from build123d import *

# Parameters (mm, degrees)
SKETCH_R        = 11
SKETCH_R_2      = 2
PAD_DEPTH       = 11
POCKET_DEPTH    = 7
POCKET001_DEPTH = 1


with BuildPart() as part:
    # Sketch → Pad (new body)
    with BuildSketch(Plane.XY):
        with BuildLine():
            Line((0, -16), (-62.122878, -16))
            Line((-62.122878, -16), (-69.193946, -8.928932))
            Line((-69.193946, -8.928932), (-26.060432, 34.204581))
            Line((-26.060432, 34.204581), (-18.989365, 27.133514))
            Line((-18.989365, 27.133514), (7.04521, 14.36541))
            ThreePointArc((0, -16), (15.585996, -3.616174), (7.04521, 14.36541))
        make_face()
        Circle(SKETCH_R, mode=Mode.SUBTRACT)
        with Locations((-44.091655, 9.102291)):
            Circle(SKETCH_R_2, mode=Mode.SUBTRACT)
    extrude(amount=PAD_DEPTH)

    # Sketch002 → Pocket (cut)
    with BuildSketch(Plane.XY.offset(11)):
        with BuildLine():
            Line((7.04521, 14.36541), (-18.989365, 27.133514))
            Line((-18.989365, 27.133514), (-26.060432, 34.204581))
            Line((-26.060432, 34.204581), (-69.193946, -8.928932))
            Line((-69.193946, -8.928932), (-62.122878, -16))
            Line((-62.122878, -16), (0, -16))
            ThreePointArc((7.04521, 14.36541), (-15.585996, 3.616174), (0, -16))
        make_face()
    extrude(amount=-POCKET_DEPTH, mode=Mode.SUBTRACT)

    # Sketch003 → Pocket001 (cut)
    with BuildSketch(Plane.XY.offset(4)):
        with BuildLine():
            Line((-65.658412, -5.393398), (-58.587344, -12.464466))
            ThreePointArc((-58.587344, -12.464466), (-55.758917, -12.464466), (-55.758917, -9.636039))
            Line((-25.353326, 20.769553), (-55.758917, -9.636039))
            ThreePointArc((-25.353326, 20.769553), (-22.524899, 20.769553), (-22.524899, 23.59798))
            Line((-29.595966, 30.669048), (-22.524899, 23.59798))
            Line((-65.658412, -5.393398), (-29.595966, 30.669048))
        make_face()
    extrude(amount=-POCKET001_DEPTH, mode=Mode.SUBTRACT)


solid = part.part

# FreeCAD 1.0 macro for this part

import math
import FreeCAD as App
import Part
import Sketcher
from FreeCAD import Vector
Q = App.Units.Quantity

doc = App.newDocument("Part")
body = doc.addObject("PartDesign::Body", "Body")

# Sketch on XY plane
sketch1 = doc.addObject("Sketcher::SketchObject", "Sketch")
body.addObject(sketch1)
sketch1.AttachmentSupport = (doc.XY_Plane, [""])
sketch1.MapMode = "FlatFace"
sketch1.addGeometry([
    Part.LineSegment(Vector(-62.1, -16, 0), Vector(0, -16, 0)),  # 0
    Part.ArcOfCircle(Part.Circle(Vector(0, 0, 0), Vector(0, 0, 1), 16), math.radians(-90), math.radians(64)),  # 1
    Part.LineSegment(Vector(7, 14.4, 0), Vector(-19, 27.1, 0)),  # 2
    Part.LineSegment(Vector(-19, 27.1, 0), Vector(-26.1, 34.2, 0)),  # 3
    Part.LineSegment(Vector(-26.1, 34.2, 0), Vector(-69.2, -8.9, 0)),  # 4
    Part.LineSegment(Vector(-69.2, -8.9, 0), Vector(-62.1, -16, 0)),  # 5
    Part.Circle(Vector(0, 0, 0), Vector(0, 0, 1), 11),  # 6
    Part.Circle(Vector(-44.1, 9.1, 0), Vector(0, 0, 1), 2),  # 7
], False)
sketch1.addConstraint([
    Sketcher.Constraint("Tangent", 0, 2, 1, 1),
    Sketcher.Constraint("Tangent", 1, 2, 2, 1),
    Sketcher.Constraint("Coincident", 2, 2, 3, 1),
    Sketcher.Constraint("Coincident", 3, 2, 4, 1),
    Sketcher.Constraint("Coincident", 4, 2, 5, 1),
    Sketcher.Constraint("Coincident", 5, 2, 0, 1),
    Sketcher.Constraint("Horizontal", 0),
    Sketcher.Constraint("Coincident", 1, 3, -1, 1),
    Sketcher.Constraint("Coincident", 6, 3, -1, 1),
    Sketcher.Constraint("Perpendicular", 3, 4),
    Sketcher.Constraint("Perpendicular", 4, 5),
    Sketcher.Constraint("Equal", 3, 5),
    Sketcher.Constraint("Diameter", 6, 22.0),
    Sketcher.Constraint("Diameter", 7, 4.0),
    Sketcher.Constraint("Radius", 1, 16.0),
    Sketcher.Constraint("Angle", 3, Q("135 deg")),
    Sketcher.Constraint("Distance", 3, 9.999999),
    Sketcher.Constraint("Distance", 4, 61.0),
    Sketcher.Constraint("Distance", 2, 28.996958),
    Sketcher.Constraint("DistanceY", -1, 1, 7, 3, 9.102291),
    Sketcher.Constraint("DistanceX", 7, 3, 2, 2, 25.10229),
])
pad1 = doc.addObject("PartDesign::Pad", "Pad")
body.addObject(pad1)
pad1.Profile = sketch1
pad1.Length = 11

# Sketch on XY plane
sketch2 = doc.addObject("Sketcher::SketchObject", "Sketch001")
body.addObject(sketch2)
sketch2.AttachmentSupport = (doc.XY_Plane, [""])
sketch2.MapMode = "FlatFace"
sketch2.AttachmentOffset = App.Placement(Vector(0, 0, 11), App.Rotation())
sketch2.addGeometry([
    Part.LineSegment(Vector(7, 14, 0), Vector(-19, 27, 0)),  # 0
    Part.LineSegment(Vector(-19, 27, 0), Vector(-26, 34, 0)),  # 1
    Part.LineSegment(Vector(-26, 34, 0), Vector(-69, -9, 0)),  # 2
    Part.LineSegment(Vector(-69, -9, 0), Vector(-62, -16, 0)),  # 3
    Part.LineSegment(Vector(-62, -16, 0), Vector(0, -16, 0)),  # 4
    Part.ArcOfCircle(Part.Circle(Vector(0, 0, 0), Vector(0, 0, 1), 16), math.radians(64), math.radians(270)),  # 5
], False)
sketch2.addConstraint([
    Sketcher.Constraint("Coincident", 0, 2, 1, 1),
    Sketcher.Constraint("Coincident", 1, 2, 2, 1),
    Sketcher.Constraint("Coincident", 2, 2, 3, 1),
    Sketcher.Constraint("Coincident", 3, 2, 4, 1),
    Sketcher.Constraint("Tangent", 4, 2, 5, 2),
    Sketcher.Constraint("Tangent", 5, 1, 0, 1),
    Sketcher.Constraint("Horizontal", 4),
    Sketcher.Constraint("Coincident", 5, 3, -1, 1),
    Sketcher.Constraint("Perpendicular", 1, 2),
    Sketcher.Constraint("Perpendicular", 2, 3),
    Sketcher.Constraint("Equal", 1, 3),
    Sketcher.Constraint("Radius", 5, 16.0),
    Sketcher.Constraint("Angle", 1, Q("135 deg")),
    Sketcher.Constraint("Distance", 1, 9.999999),
    Sketcher.Constraint("Distance", 2, 61.0),
    Sketcher.Constraint("Distance", 0, 28.996958),
])
pocket1 = doc.addObject("PartDesign::Pocket", "Pocket")
body.addObject(pocket1)
pocket1.Profile = sketch2
pocket1.Length = 7

# Sketch on XY plane
sketch3 = doc.addObject("Sketcher::SketchObject", "Sketch002")
body.addObject(sketch3)
sketch3.AttachmentSupport = (doc.XY_Plane, [""])
sketch3.MapMode = "FlatFace"
sketch3.AttachmentOffset = App.Placement(Vector(0, 0, 4), App.Rotation())
sketch3.addGeometry([
    Part.LineSegment(Vector(-65.7, -5.4, 0), Vector(-58.6, -12.5, 0)),  # 0
    Part.ArcOfCircle(Part.Circle(Vector(-57.2, -11.1, 0), Vector(0, 0, 1), 2), math.radians(-135), math.radians(45)),  # 1
    Part.LineSegment(Vector(-55.8, -9.6, 0), Vector(-25.4, 20.8, 0)),  # 2
    Part.ArcOfCircle(Part.Circle(Vector(-23.9, 22.2, 0), Vector(0, 0, 1), 2), math.radians(-135), math.radians(45)),  # 3
    Part.LineSegment(Vector(-22.5, 23.6, 0), Vector(-29.6, 30.7, 0)),  # 4
    Part.LineSegment(Vector(-29.6, 30.7, 0), Vector(-65.7, -5.4, 0)),  # 5
], False)
sketch3.addConstraint([
    Sketcher.Constraint("Tangent", 0, 2, 1, 1),
    Sketcher.Constraint("Coincident", 1, 2, 2, 1),
    Sketcher.Constraint("Coincident", 2, 2, 3, 1),
    Sketcher.Constraint("Tangent", 3, 2, 4, 1),
    Sketcher.Constraint("Coincident", 4, 2, 5, 1),
    Sketcher.Constraint("Coincident", 5, 2, 0, 1),
    Sketcher.Constraint("Equal", 1, 3),
    Sketcher.Constraint("Perpendicular", 0, 2),
    Sketcher.Constraint("Perpendicular", 2, 4),
    Sketcher.Constraint("Perpendicular", 4, 5),
    Sketcher.Constraint("Equal", 0, 4),
    Sketcher.Constraint("Radius", 1, 2.0),
    Sketcher.Constraint("Angle", 0, Q("-45 deg")),
    Sketcher.Constraint("Distance", 0, 10.0),
    Sketcher.Constraint("Distance", 2, 43.0),
    Sketcher.Constraint("DistanceX", 3, 2, -1, 1, 22.524899),
    Sketcher.Constraint("DistanceY", 5, 2, -1, 1, 5.393398),
    Sketcher.Constraint("DistanceY", 1, 2, -1, 1, 9.636039),
])
pocket2 = doc.addObject("PartDesign::Pocket", "Pocket001")
body.addObject(pocket2)
pocket2.Profile = sketch3
pocket2.Length = 1

doc.recompute()
